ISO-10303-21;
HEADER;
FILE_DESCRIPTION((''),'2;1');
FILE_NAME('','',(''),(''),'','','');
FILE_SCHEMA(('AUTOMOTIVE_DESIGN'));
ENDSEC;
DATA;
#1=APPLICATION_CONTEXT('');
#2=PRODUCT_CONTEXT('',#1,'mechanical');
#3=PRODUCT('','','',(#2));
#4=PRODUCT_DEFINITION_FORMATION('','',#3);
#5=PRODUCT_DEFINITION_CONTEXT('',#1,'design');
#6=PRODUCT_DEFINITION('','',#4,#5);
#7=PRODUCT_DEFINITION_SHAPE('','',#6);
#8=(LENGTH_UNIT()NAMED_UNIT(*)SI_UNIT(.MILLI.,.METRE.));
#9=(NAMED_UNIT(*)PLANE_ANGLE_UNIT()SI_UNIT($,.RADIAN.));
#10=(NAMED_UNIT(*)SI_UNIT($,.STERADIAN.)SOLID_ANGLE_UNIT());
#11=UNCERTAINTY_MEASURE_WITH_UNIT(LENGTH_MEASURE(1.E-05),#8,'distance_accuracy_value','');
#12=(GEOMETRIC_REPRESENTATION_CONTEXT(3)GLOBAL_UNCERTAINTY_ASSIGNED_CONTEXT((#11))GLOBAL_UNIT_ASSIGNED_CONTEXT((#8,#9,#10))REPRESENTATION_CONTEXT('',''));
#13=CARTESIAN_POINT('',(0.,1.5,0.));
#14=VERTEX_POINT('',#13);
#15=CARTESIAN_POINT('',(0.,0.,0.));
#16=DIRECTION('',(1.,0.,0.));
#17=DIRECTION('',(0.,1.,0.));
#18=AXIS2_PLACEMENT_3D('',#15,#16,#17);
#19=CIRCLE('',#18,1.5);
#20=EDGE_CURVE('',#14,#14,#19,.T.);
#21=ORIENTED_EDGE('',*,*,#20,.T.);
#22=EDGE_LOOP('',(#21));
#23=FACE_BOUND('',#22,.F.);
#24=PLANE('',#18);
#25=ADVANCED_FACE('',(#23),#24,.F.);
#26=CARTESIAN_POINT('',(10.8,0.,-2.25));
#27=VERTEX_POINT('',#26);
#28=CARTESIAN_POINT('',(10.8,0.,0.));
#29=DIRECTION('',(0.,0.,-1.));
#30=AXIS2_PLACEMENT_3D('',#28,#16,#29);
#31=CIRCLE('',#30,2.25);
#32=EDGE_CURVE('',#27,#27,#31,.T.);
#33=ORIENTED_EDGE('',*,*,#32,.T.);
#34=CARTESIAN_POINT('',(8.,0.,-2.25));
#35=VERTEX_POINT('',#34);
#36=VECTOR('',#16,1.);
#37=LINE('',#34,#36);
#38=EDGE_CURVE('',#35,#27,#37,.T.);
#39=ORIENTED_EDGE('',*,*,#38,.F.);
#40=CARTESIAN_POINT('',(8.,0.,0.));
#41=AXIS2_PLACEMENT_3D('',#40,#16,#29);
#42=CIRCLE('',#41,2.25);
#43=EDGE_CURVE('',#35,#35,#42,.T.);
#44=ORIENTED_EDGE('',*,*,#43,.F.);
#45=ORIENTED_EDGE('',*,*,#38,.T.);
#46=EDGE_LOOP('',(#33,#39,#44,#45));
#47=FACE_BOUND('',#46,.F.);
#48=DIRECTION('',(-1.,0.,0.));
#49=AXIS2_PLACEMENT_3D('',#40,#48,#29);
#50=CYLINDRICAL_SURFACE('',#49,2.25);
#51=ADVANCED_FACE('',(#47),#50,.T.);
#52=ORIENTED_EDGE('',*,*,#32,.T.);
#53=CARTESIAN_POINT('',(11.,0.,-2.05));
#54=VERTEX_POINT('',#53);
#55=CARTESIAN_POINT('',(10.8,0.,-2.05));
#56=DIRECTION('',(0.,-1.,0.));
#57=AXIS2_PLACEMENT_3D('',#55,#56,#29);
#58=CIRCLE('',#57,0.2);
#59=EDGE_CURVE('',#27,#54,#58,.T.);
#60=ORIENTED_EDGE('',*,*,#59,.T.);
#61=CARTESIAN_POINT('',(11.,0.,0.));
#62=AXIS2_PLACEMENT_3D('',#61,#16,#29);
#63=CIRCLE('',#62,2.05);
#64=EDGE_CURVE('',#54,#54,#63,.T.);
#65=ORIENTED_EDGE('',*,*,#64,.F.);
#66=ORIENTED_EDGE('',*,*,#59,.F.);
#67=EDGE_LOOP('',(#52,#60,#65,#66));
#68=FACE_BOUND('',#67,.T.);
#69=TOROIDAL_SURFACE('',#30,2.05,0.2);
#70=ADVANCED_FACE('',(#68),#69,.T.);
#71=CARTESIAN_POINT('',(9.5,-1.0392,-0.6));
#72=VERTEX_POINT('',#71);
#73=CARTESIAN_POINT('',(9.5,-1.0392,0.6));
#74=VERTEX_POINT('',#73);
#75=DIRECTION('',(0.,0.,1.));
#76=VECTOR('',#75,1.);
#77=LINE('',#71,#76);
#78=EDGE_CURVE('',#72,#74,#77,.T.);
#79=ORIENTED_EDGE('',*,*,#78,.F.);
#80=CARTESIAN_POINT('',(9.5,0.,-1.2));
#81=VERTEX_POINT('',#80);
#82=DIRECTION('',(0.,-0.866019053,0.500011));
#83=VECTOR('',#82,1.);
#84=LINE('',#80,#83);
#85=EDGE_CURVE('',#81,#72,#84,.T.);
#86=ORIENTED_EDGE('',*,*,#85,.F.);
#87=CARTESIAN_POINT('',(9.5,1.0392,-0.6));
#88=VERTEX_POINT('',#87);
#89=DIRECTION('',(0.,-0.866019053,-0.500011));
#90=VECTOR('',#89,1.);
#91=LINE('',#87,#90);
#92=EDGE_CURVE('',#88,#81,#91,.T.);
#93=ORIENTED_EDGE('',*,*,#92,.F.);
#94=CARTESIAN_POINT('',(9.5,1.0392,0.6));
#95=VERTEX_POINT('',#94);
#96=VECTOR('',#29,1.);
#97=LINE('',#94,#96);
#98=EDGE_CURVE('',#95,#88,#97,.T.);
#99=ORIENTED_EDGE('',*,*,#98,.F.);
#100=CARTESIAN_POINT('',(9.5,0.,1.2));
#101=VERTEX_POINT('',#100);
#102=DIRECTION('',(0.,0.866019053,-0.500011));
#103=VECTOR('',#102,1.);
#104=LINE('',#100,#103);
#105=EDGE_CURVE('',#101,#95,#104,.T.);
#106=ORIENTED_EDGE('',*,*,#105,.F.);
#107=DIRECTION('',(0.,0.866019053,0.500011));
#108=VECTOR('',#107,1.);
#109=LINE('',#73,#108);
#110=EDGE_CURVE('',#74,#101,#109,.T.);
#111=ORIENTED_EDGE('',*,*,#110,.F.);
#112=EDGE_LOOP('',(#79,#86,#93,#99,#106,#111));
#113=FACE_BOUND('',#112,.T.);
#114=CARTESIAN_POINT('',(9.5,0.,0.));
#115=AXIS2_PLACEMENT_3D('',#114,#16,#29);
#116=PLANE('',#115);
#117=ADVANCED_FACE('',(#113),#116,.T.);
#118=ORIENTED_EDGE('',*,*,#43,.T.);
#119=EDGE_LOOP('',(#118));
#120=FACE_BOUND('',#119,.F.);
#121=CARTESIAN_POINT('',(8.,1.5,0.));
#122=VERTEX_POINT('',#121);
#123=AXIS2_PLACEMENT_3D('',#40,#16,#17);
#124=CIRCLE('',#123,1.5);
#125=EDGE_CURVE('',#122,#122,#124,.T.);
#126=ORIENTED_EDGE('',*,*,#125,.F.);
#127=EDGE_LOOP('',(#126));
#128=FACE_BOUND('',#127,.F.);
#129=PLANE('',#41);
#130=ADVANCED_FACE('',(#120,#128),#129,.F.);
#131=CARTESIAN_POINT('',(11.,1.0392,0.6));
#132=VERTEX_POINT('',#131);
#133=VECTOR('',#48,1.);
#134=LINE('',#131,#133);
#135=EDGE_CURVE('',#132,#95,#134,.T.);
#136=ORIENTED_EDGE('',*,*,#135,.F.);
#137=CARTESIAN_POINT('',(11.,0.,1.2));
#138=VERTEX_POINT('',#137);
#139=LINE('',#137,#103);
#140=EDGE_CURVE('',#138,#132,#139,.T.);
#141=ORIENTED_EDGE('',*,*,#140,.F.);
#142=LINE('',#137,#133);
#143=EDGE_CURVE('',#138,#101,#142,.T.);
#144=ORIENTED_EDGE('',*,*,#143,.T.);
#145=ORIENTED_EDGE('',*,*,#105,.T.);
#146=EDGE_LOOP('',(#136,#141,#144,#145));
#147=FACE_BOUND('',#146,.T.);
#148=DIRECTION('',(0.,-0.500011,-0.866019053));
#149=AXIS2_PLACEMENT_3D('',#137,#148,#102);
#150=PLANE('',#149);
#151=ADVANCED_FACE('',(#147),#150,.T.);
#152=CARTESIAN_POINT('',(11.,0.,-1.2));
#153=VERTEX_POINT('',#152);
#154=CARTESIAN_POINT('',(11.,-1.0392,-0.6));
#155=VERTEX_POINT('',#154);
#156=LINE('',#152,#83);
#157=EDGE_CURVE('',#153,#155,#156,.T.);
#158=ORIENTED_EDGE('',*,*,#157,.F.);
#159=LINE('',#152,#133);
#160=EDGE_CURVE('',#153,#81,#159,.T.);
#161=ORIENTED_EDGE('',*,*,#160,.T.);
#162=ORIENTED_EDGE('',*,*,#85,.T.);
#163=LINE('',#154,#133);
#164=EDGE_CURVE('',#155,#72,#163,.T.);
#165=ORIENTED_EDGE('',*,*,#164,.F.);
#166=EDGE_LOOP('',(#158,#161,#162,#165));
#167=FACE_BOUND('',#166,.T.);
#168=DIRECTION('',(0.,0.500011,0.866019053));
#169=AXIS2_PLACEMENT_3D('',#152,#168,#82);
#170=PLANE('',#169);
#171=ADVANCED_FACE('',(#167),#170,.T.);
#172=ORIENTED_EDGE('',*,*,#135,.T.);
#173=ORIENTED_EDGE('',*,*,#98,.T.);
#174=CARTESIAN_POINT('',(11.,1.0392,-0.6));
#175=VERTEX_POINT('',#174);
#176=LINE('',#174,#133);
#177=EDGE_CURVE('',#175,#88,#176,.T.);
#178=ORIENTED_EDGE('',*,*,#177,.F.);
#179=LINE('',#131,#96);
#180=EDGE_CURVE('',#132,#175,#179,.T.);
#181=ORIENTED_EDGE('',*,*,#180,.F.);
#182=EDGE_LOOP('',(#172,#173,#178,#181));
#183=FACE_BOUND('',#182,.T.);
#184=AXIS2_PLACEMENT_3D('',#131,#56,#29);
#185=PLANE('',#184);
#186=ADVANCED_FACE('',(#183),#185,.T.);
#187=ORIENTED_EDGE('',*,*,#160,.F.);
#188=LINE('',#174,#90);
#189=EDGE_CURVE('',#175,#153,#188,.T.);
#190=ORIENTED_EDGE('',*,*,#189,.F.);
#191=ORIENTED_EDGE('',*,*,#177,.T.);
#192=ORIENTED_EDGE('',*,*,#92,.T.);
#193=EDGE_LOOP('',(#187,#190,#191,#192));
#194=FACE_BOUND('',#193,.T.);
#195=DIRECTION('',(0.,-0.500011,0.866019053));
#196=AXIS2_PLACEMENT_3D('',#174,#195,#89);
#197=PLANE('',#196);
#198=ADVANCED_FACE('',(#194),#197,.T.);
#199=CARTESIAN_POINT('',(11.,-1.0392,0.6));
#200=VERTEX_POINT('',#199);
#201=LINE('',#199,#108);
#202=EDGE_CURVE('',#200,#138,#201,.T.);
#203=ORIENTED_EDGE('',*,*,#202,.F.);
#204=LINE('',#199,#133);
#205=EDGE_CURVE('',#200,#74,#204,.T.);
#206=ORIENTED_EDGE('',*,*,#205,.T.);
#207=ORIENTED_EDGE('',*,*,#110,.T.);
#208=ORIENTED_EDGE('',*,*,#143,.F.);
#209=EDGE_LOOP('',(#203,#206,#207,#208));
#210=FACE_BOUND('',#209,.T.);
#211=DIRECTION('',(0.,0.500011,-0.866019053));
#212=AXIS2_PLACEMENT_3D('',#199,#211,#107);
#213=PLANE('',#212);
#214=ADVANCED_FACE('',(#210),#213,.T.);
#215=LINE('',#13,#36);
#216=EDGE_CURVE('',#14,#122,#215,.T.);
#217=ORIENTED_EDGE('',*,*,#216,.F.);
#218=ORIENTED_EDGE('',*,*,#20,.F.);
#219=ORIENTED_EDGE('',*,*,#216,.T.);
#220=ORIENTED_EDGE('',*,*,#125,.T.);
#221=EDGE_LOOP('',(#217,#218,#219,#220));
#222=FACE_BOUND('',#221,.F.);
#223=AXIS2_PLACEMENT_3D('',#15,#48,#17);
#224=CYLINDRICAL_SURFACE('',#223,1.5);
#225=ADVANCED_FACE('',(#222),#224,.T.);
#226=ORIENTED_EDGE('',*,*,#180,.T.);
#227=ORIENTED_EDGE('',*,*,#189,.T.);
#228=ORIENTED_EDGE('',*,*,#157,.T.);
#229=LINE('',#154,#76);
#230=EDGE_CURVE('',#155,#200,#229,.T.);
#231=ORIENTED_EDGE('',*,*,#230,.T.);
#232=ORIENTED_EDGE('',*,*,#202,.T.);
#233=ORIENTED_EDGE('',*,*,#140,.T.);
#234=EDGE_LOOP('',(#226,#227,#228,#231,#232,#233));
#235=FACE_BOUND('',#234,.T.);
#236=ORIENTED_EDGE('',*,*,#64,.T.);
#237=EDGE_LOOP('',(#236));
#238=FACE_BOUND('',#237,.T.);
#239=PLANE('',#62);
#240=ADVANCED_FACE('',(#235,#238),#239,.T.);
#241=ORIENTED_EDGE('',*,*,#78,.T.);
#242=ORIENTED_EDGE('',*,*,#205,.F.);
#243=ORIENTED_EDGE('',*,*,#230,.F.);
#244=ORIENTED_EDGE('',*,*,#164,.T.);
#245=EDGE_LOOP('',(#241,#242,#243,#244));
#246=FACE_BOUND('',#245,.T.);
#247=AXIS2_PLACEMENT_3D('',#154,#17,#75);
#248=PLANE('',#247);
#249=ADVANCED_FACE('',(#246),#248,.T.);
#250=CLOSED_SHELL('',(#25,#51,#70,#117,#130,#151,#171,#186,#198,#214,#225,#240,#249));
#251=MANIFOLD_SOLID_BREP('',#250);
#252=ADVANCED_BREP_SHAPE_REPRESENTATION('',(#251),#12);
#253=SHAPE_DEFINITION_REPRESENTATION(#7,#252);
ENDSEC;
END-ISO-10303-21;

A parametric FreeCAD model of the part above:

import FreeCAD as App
import Part
import Sketcher

V = App.Vector
Q = App.Units.Quantity


def edges_at(feature, points):
    """Names of the edges that pass closest to the given points."""
    edges = feature.Shape.Edges
    near = lambda p: min(range(len(edges)), key=lambda i: edges[i].distToShape(Part.Vertex(*p))[0])
    return sorted({f"Edge{near(p) + 1}" for p in points})


def add_polygon(sketch, points):
    """Adds a closed chain of lines whose ends are joined by coincident constraints."""
    first, n = sketch.GeometryCount, len(points)
    for a, b in zip(points, points[1:] + points[:1]):
        sketch.addGeometry(Part.LineSegment(App.Vector(*a, 0), App.Vector(*b, 0)), False)
    for i in range(n):
        sketch.addConstraint(Sketcher.Constraint("Coincident", first + i, 2, first + (i + 1) % n, 1))

doc = App.newDocument("Part")
body = doc.addObject("PartDesign::Body", "Body")

# Sketch on YZ plane
sketch1 = doc.addObject("Sketcher::SketchObject", "Sketch")
body.addObject(sketch1)
sketch1.AttachmentSupport = (doc.YZ_Plane, [""])
sketch1.MapMode = "FlatFace"
sketch1.addGeometry(Part.Circle(V(0, 0, 0), V(0, 0, 1), 1.5), False)
sketch1.addConstraint(Sketcher.Constraint("Coincident", 0, 3, -1, 1))
sketch1.addConstraint(Sketcher.Constraint("Diameter", 0, Q("3 mm")))
pad1 = doc.addObject("PartDesign::Pad", "Pad")
body.addObject(pad1)
pad1.Profile = sketch1
pad1.Length = 8

# Sketch on YZ plane
sketch2 = doc.addObject("Sketcher::SketchObject", "Sketch001")
body.addObject(sketch2)
sketch2.AttachmentSupport = (doc.YZ_Plane, [""])
sketch2.MapMode = "FlatFace"
sketch2.AttachmentOffset = App.Placement(V(0, 0, 8), App.Rotation())
sketch2.addGeometry(Part.Circle(V(0, 0, 0), V(0, 0, 1), 2.2), False)
sketch2.addConstraint(Sketcher.Constraint("Coincident", 0, 3, -1, 1))
sketch2.addConstraint(Sketcher.Constraint("Diameter", 0, Q("4.5 mm")))
pad2 = doc.addObject("PartDesign::Pad", "Pad001")
body.addObject(pad2)
pad2.Profile = sketch2
pad2.Length = 3
doc.recompute()

fillet = doc.addObject("PartDesign::Fillet", "Fillet")
body.addObject(fillet)
fillet.Base = (pad2, edges_at(pad2, [(11, 0, 2.25)]))
fillet.Radius = 0.2

# Sketch on YZ plane
sketch3 = doc.addObject("Sketcher::SketchObject", "Sketch002")
body.addObject(sketch3)
sketch3.AttachmentSupport = (doc.YZ_Plane, [""])
sketch3.MapMode = "FlatFace"
sketch3.AttachmentOffset = App.Placement(V(0, 0, 11), App.Rotation())
add_polygon(sketch3, [(-1, -0.6), (0, -1.2), (1, -0.6), (1, 0.6), (0, 1.2), (-1, 0.6)])  # lines 0-5
sketch3.addConstraint(Sketcher.Constraint("Vertical", 2))
sketch3.addConstraint(Sketcher.Constraint("Vertical", 5))
sketch3.addConstraint(Sketcher.Constraint("Symmetric", 0, 2, 3, 2, -1, 1))
sketch3.addConstraint(Sketcher.Constraint("Symmetric", 1, 2, 4, 2, -1, 1))
sketch3.addConstraint(Sketcher.Constraint("PointOnObject", 0, 2, -2))
sketch3.addConstraint(Sketcher.Constraint("Parallel", 0, 3))
sketch3.addConstraint(Sketcher.Constraint("Horizontal", 2, 2, 4, 2))
sketch3.addConstraint(Sketcher.Constraint("DistanceY", 0, 2, 3, 2, Q("2.4 mm")))
sketch3.addConstraint(Sketcher.Constraint("Angle", 0, Q("-30.0007 deg")))
sketch3.addConstraint(Sketcher.Constraint("DistanceY", 2, 1, 2, 2, Q("1.2 mm")))
pocket1 = doc.addObject("PartDesign::Pocket", "Pocket")
body.addObject(pocket1)
pocket1.Profile = sketch3
pocket1.Length = 1.5

doc.recompute()
